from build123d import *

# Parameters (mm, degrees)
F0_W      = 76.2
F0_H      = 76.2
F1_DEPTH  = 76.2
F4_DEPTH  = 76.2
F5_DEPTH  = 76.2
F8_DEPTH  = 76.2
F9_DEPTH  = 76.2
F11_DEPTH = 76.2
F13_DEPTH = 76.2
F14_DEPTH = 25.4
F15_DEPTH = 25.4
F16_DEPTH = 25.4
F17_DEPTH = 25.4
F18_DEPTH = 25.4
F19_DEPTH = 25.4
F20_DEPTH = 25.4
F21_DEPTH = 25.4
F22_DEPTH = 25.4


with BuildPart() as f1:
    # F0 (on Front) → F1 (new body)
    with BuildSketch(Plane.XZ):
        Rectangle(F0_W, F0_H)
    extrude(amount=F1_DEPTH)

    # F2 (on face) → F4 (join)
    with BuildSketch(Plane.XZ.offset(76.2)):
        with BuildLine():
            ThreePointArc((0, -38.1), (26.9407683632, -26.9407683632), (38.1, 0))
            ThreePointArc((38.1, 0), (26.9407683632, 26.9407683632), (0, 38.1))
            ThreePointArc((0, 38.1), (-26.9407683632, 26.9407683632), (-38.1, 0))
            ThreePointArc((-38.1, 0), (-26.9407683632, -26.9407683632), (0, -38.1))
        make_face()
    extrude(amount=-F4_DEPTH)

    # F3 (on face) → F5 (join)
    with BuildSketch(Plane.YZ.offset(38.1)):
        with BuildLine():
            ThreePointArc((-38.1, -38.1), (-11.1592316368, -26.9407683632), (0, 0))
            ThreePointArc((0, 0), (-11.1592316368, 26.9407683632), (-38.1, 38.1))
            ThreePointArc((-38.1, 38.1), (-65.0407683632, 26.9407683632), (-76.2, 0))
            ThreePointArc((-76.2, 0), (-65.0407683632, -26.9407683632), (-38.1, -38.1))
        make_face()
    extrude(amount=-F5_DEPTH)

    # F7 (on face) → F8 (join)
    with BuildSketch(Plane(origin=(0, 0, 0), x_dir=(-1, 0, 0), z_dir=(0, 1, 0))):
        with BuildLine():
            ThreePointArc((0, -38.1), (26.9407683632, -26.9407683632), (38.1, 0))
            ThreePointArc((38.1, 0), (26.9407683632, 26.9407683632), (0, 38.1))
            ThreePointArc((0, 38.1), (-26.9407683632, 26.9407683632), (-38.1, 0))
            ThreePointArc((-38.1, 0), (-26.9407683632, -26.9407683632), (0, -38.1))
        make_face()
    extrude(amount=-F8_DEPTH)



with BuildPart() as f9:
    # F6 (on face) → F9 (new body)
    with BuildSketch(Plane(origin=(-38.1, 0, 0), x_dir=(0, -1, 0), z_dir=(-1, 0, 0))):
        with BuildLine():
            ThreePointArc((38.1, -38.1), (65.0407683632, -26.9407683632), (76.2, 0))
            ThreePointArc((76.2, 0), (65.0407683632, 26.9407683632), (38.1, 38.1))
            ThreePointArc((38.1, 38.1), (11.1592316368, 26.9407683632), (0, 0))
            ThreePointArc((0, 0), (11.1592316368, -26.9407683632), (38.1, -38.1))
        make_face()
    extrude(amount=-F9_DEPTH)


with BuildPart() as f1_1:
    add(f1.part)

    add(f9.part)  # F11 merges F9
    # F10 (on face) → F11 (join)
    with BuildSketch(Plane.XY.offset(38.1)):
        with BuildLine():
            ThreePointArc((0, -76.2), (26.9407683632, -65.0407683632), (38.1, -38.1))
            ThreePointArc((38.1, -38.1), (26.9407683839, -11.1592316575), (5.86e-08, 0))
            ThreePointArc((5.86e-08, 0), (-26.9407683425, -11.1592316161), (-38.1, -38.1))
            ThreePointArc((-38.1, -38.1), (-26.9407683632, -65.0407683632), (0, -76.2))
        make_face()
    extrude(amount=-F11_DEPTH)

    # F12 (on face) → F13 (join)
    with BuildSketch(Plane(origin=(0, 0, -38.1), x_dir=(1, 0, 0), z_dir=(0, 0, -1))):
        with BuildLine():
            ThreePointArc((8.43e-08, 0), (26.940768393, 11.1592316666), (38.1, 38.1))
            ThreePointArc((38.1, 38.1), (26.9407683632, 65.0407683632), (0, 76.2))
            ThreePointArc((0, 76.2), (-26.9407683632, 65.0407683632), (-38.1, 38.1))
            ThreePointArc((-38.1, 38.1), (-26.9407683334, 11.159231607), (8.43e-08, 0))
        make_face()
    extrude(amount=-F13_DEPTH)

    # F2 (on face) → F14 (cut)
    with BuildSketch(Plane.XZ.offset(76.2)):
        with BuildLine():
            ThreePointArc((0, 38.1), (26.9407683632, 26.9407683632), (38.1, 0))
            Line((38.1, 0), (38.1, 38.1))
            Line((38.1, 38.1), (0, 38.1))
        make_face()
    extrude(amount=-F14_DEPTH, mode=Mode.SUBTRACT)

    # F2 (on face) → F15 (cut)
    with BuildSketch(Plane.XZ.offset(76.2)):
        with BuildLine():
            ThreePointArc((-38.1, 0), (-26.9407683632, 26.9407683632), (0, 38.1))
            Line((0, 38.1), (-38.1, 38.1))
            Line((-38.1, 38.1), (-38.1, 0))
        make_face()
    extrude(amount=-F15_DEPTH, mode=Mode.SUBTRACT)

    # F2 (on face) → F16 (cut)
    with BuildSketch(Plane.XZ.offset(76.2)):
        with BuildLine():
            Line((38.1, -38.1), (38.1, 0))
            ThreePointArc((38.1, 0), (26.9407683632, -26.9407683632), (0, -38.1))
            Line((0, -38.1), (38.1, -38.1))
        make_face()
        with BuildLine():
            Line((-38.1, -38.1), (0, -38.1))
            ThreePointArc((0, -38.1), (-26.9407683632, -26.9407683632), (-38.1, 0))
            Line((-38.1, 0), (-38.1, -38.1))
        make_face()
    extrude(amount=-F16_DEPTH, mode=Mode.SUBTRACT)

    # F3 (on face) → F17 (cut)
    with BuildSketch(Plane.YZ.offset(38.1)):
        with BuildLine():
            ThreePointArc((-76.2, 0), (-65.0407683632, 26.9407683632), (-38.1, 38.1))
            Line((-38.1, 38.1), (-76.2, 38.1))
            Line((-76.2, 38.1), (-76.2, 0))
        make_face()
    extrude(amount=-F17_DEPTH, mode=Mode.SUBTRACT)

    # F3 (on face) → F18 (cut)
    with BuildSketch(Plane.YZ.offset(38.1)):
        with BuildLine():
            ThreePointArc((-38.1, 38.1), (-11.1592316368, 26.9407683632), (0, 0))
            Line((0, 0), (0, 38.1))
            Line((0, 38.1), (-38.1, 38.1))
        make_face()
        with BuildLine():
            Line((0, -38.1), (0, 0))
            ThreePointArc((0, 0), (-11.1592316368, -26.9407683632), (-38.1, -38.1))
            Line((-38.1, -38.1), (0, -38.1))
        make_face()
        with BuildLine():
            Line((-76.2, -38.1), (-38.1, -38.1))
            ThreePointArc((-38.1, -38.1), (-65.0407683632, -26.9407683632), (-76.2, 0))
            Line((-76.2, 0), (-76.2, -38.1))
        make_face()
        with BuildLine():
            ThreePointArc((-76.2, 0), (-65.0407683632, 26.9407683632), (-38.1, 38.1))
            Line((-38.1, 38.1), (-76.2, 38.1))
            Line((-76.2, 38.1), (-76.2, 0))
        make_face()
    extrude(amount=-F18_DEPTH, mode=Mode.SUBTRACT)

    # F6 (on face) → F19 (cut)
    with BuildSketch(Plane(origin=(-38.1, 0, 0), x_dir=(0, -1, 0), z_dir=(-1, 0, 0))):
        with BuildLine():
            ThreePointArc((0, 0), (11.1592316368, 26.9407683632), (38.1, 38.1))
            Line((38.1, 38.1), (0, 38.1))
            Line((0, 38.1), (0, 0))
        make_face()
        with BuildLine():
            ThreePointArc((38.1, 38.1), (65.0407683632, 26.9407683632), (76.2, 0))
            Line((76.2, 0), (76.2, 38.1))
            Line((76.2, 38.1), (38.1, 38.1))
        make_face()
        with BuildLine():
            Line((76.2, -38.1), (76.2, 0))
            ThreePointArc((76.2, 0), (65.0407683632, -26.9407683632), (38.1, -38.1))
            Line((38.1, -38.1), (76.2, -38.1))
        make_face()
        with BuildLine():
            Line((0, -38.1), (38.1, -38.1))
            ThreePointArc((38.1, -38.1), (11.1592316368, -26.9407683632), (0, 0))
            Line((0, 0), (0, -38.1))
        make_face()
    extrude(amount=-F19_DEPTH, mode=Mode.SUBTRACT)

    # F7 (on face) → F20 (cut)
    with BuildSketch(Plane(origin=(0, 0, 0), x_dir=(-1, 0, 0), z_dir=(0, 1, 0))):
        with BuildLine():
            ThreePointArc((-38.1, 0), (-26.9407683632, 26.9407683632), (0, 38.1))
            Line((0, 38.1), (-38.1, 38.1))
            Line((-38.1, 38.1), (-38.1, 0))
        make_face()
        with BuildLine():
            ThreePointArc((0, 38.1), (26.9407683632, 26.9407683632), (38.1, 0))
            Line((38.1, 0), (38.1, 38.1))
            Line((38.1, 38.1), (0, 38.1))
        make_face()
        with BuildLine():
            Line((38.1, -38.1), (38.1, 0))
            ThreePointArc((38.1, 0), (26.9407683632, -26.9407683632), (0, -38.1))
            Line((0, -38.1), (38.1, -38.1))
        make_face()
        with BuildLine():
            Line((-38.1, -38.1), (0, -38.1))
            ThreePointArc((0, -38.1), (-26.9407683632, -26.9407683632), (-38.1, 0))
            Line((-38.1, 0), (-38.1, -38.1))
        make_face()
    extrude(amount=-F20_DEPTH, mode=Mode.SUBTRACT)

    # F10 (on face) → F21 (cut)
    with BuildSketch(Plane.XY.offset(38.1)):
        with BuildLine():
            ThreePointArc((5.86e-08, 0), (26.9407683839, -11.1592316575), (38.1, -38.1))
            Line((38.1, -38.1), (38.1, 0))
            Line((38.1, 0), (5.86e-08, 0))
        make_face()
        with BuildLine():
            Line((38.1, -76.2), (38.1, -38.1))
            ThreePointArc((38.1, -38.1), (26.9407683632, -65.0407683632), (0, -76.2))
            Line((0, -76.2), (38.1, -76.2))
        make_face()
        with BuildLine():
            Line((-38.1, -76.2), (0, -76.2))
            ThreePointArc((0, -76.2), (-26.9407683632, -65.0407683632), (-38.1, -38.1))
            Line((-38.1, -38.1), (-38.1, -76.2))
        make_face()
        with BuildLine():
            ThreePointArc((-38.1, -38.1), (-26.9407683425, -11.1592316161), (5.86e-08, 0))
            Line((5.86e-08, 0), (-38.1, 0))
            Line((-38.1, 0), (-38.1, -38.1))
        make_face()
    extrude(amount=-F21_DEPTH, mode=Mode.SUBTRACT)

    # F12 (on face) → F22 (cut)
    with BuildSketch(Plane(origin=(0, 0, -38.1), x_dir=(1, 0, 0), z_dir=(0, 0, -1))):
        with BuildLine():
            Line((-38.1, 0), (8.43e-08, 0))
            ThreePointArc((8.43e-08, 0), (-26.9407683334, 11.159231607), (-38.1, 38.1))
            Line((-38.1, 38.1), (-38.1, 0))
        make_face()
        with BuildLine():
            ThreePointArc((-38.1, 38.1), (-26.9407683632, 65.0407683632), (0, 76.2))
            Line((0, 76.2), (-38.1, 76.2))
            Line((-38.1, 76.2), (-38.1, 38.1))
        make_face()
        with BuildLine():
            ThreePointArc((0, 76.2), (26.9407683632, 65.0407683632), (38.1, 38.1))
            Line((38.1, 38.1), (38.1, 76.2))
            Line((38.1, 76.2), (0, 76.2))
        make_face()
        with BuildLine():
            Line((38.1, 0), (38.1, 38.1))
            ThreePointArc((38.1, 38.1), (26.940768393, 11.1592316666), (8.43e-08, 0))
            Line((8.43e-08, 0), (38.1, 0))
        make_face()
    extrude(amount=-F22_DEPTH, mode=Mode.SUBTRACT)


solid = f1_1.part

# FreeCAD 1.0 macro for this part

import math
import FreeCAD as App
import Part
import Sketcher
Q = App.Units.Quantity

doc = App.newDocument("Part")
body = doc.addObject("PartDesign::Body", "Body")

# Sketch on XZ plane
sketch1 = body.newObject("Sketcher::SketchObject", "Sketch")
sketch1.AttachmentSupport = (doc.getObject("XZ_Plane"), [""])
sketch1.MapMode = "FlatFace"
sketch1.addGeometry(Part.LineSegment(App.Vector(-38, 38, 0), App.Vector(-38, -38, 0)), False)
sketch1.addGeometry(Part.LineSegment(App.Vector(-38, -38, 0), App.Vector(38, -38, 0)), False)
sketch1.addGeometry(Part.LineSegment(App.Vector(38, -38, 0), App.Vector(38, 38, 0)), False)
sketch1.addGeometry(Part.LineSegment(App.Vector(38, 38, 0), App.Vector(-38, 38, 0)), False)
sketch1.addConstraint(Sketcher.Constraint("Coincident", 0, 2, 1, 1))
sketch1.addConstraint(Sketcher.Constraint("Coincident", 1, 2, 2, 1))
sketch1.addConstraint(Sketcher.Constraint("Coincident", 2, 2, 3, 1))
sketch1.addConstraint(Sketcher.Constraint("Coincident", 3, 2, 0, 1))
sketch1.addConstraint(Sketcher.Constraint("Vertical", 0))
sketch1.addConstraint(Sketcher.Constraint("Horizontal", 1))
sketch1.addConstraint(Sketcher.Constraint("Vertical", 2))
sketch1.addConstraint(Sketcher.Constraint("Horizontal", 3))
sketch1.addConstraint(Sketcher.Constraint("Symmetric", 0, 2, 2, 2, -1, 1))
sketch1.addConstraint(Sketcher.Constraint("Equal", 3, 0))
sketch1.addConstraint(Sketcher.Constraint("DistanceX", 1, 1, 1, 2, Q("3 in")))
pad1 = body.newObject("PartDesign::Pad", "Pad")
pad1.Profile = sketch1
pad1.Length = Q("3 in")

# Sketch on XZ plane
sketch2 = body.newObject("Sketcher::SketchObject", "Sketch001")
sketch2.AttachmentSupport = (doc.getObject("XZ_Plane"), [""])
sketch2.MapMode = "FlatFace"
sketch2.AttachmentOffset = App.Placement(App.Vector(0, 0, 3 * 25.4), App.Rotation())
sketch2.addGeometry(Part.ArcOfCircle(Part.Circle(App.Vector(0, 0, 0), App.Vector(0, 0, 1), 38), math.radians(-90), math.radians(0)), False)
sketch2.addGeometry(Part.ArcOfCircle(Part.Circle(App.Vector(0, 0, 0), App.Vector(0, 0, 1), 38), math.radians(0), math.radians(90)), False)
sketch2.addGeometry(Part.ArcOfCircle(Part.Circle(App.Vector(0, 0, 0), App.Vector(0, 0, 1), 38), math.radians(90), math.radians(180)), False)
sketch2.addGeometry(Part.ArcOfCircle(Part.Circle(App.Vector(0, 0, 0), App.Vector(0, 0, 1), 38), math.radians(180), math.radians(270)), False)
sketch2.addConstraint(Sketcher.Constraint("Tangent", 0, 2, 1, 1))
sketch2.addConstraint(Sketcher.Constraint("Tangent", 1, 2, 2, 1))
sketch2.addConstraint(Sketcher.Constraint("Tangent", 2, 2, 3, 1))
sketch2.addConstraint(Sketcher.Constraint("Tangent", 3, 2, 0, 1))
sketch2.addConstraint(Sketcher.Constraint("Coincident", 0, 3, -1, 1))
sketch2.addConstraint(Sketcher.Constraint("Equal", 0, 1))
sketch2.addConstraint(Sketcher.Constraint("PointOnObject", 0, 2, -1))
sketch2.addConstraint(Sketcher.Constraint("PointOnObject", 1, 2, -2))
sketch2.addConstraint(Sketcher.Constraint("PointOnObject", 2, 2, -1))
sketch2.addConstraint(Sketcher.Constraint("PointOnObject", 3, 2, -2))
sketch2.addConstraint(Sketcher.Constraint("Radius", 0, Q("1.5 in")))
pad2 = body.newObject("PartDesign::Pad", "Pad001")
pad2.Profile = sketch2
pad2.Length = Q("3 in")
pad2.Reversed = True

# Sketch on YZ plane
sketch3 = body.newObject("Sketcher::SketchObject", "Sketch002")
sketch3.AttachmentSupport = (doc.getObject("YZ_Plane"), [""])
sketch3.MapMode = "FlatFace"
sketch3.AttachmentOffset = App.Placement(App.Vector(0, 0, 1.5 * 25.4), App.Rotation())
sketch3.addGeometry(Part.ArcOfCircle(Part.Circle(App.Vector(-38, 0, 0), App.Vector(0, 0, 1), 38), math.radians(-90), math.radians(0)), False)
sketch3.addGeometry(Part.ArcOfCircle(Part.Circle(App.Vector(-38, 0, 0), App.Vector(0, 0, 1), 38), math.radians(0), math.radians(90)), False)
sketch3.addGeometry(Part.ArcOfCircle(Part.Circle(App.Vector(-38, 0, 0), App.Vector(0, 0, 1), 38), math.radians(90), math.radians(180)), False)
sketch3.addGeometry(Part.ArcOfCircle(Part.Circle(App.Vector(-38, 0, 0), App.Vector(0, 0, 1), 38), math.radians(180), math.radians(270)), False)
sketch3.addConstraint(Sketcher.Constraint("Tangent", 0, 2, 1, 1))
sketch3.addConstraint(Sketcher.Constraint("Tangent", 1, 2, 2, 1))
sketch3.addConstraint(Sketcher.Constraint("Tangent", 2, 2, 3, 1))
sketch3.addConstraint(Sketcher.Constraint("Tangent", 3, 2, 0, 1))
sketch3.addConstraint(Sketcher.Constraint("Coincident", 0, 2, -1, 1))
sketch3.addConstraint(Sketcher.Constraint("Equal", 0, 1))
sketch3.addConstraint(Sketcher.Constraint("Symmetric", 1, 2, 3, 2, -1))
sketch3.addConstraint(Sketcher.Constraint("PointOnObject", 2, 2, -1))
sketch3.addConstraint(Sketcher.Constraint("Vertical", 3, 3, 1, 2))
sketch3.addConstraint(Sketcher.Constraint("Radius", 0, Q("1.5 in")))
pad3 = body.newObject("PartDesign::Pad", "Pad002")
pad3.Profile = sketch3
pad3.Length = Q("3 in")
pad3.Reversed = True

# Sketch on XZ plane
sketch4 = body.newObject("Sketcher::SketchObject", "Sketch003")
sketch4.AttachmentSupport = (doc.getObject("XZ_Plane"), [""])
sketch4.MapMode = "FlatFace"
sketch4.addGeometry(Part.ArcOfCircle(Part.Circle(App.Vector(0, 0, 0), App.Vector(0, 0, 1), 38), math.radians(180), math.radians(270)), False)
sketch4.addGeometry(Part.ArcOfCircle(Part.Circle(App.Vector(0, 0, 0), App.Vector(0, 0, 1), 38), math.radians(90), math.radians(180)), False)
sketch4.addGeometry(Part.ArcOfCircle(Part.Circle(App.Vector(0, 0, 0), App.Vector(0, 0, 1), 38), math.radians(0), math.radians(90)), False)
sketch4.addGeometry(Part.ArcOfCircle(Part.Circle(App.Vector(0, 0, 0), App.Vector(0, 0, 1), 38), math.radians(-90), math.radians(0)), False)
sketch4.addConstraint(Sketcher.Constraint("Tangent", 0, 1, 1, 2))
sketch4.addConstraint(Sketcher.Constraint("Tangent", 1, 1, 2, 2))
sketch4.addConstraint(Sketcher.Constraint("Tangent", 2, 1, 3, 2))
sketch4.addConstraint(Sketcher.Constraint("Tangent", 3, 1, 0, 2))
sketch4.addConstraint(Sketcher.Constraint("Coincident", 0, 3, -1, 1))
sketch4.addConstraint(Sketcher.Constraint("Equal", 0, 1))
sketch4.addConstraint(Sketcher.Constraint("PointOnObject", 0, 1, -1))
sketch4.addConstraint(Sketcher.Constraint("PointOnObject", 1, 1, -2))
sketch4.addConstraint(Sketcher.Constraint("PointOnObject", 2, 1, -1))
sketch4.addConstraint(Sketcher.Constraint("PointOnObject", 3, 1, -2))
sketch4.addConstraint(Sketcher.Constraint("Radius", 0, Q("1.5 in")))
pad4 = body.newObject("PartDesign::Pad", "Pad003")
pad4.Profile = sketch4
pad4.Length = Q("3 in")
body2 = doc.addObject("PartDesign::Body", "Body001")

# Sketch on YZ plane
sketch5 = body2.newObject("Sketcher::SketchObject", "Sketch004")
sketch5.AttachmentSupport = (doc.getObject("YZ_Plane001"), [""])
sketch5.MapMode = "FlatFace"
sketch5.AttachmentOffset = App.Placement(App.Vector(0, 0, -1.5 * 25.4), App.Rotation())
sketch5.addGeometry(Part.ArcOfCircle(Part.Circle(App.Vector(-38, 0, 0), App.Vector(0, 0, 1), 38), math.radians(180), math.radians(270)), False)
sketch5.addGeometry(Part.ArcOfCircle(Part.Circle(App.Vector(-38, 0, 0), App.Vector(0, 0, 1), 38), math.radians(90), math.radians(180)), False)
sketch5.addGeometry(Part.ArcOfCircle(Part.Circle(App.Vector(-38, 0, 0), App.Vector(0, 0, 1), 38), math.radians(0), math.radians(90)), False)
sketch5.addGeometry(Part.ArcOfCircle(Part.Circle(App.Vector(-38, 0, 0), App.Vector(0, 0, 1), 38), math.radians(-90), math.radians(0)), False)
sketch5.addConstraint(Sketcher.Constraint("Tangent", 0, 1, 1, 2))
sketch5.addConstraint(Sketcher.Constraint("Tangent", 1, 1, 2, 2))
sketch5.addConstraint(Sketcher.Constraint("Tangent", 2, 1, 3, 2))
sketch5.addConstraint(Sketcher.Constraint("Tangent", 3, 1, 0, 2))
sketch5.addConstraint(Sketcher.Constraint("Coincident", 2, 1, -1, 1))
sketch5.addConstraint(Sketcher.Constraint("Equal", 0, 1))
sketch5.addConstraint(Sketcher.Constraint("Symmetric", 1, 1, 3, 1, -1))
sketch5.addConstraint(Sketcher.Constraint("PointOnObject", 0, 1, -1))
sketch5.addConstraint(Sketcher.Constraint("Vertical", 3, 3, 1, 1))
sketch5.addConstraint(Sketcher.Constraint("Radius", 0, Q("1.5 in")))
pad5 = body2.newObject("PartDesign::Pad", "Pad004")
pad5.Profile = sketch5
pad5.Length = Q("3 in")
doc.recompute()

boolean = body.newObject("PartDesign::Boolean", "Boolean")
boolean.Type = "Fuse"
boolean.addObjects([body2])

# Sketch on XY plane
sketch6 = body.newObject("Sketcher::SketchObject", "Sketch005")
sketch6.AttachmentSupport = (doc.getObject("XY_Plane"), [""])
sketch6.MapMode = "FlatFace"
sketch6.AttachmentOffset = App.Placement(App.Vector(0, 0, 1.5 * 25.4), App.Rotation())
sketch6.addGeometry(Part.ArcOfCircle(Part.Circle(App.Vector(0, -38, 0), App.Vector(0, 0, 1), 38), math.radians(-90), math.radians(0)), False)
sketch6.addGeometry(Part.ArcOfCircle(Part.Circle(App.Vector(0, -38, 0), App.Vector(0, 0, 1), 38), math.radians(0), math.radians(90)), False)
sketch6.addGeometry(Part.ArcOfCircle(Part.Circle(App.Vector(0, -38, 0), App.Vector(0, 0, 1), 38), math.radians(90), math.radians(180)), False)
sketch6.addGeometry(Part.ArcOfCircle(Part.Circle(App.Vector(0, -38, 0), App.Vector(0, 0, 1), 38), math.radians(180), math.radians(270)), False)
sketch6.addConstraint(Sketcher.Constraint("Tangent", 0, 2, 1, 1))
sketch6.addConstraint(Sketcher.Constraint("Tangent", 1, 2, 2, 1))
sketch6.addConstraint(Sketcher.Constraint("Tangent", 2, 2, 3, 1))
sketch6.addConstraint(Sketcher.Constraint("Tangent", 3, 2, 0, 1))
sketch6.addConstraint(Sketcher.Constraint("Coincident", 1, 2, -1, 1))
sketch6.addConstraint(Sketcher.Constraint("Equal", 0, 1))
sketch6.addConstraint(Sketcher.Constraint("Symmetric", 0, 2, 2, 2, -2))
sketch6.addConstraint(Sketcher.Constraint("PointOnObject", 3, 2, -2))
sketch6.addConstraint(Sketcher.Constraint("Horizontal", 3, 3, 0, 2))
sketch6.addConstraint(Sketcher.Constraint("Radius", 0, Q("1.5 in")))
pad6 = body.newObject("PartDesign::Pad", "Pad005")
pad6.Profile = sketch6
pad6.Length = Q("3 in")
pad6.Reversed = True

# Sketch on XY plane
sketch7 = body.newObject("Sketcher::SketchObject", "Sketch006")
sketch7.AttachmentSupport = (doc.getObject("XY_Plane"), [""])
sketch7.MapMode = "FlatFace"
sketch7.AttachmentOffset = App.Placement(App.Vector(0, 0, -1.5 * 25.4), App.Rotation())
sketch7.addGeometry(Part.ArcOfCircle(Part.Circle(App.Vector(0, -38, 0), App.Vector(0, 0, 1), 38), math.radians(0), math.radians(90)), False)
sketch7.addGeometry(Part.ArcOfCircle(Part.Circle(App.Vector(0, -38, 0), App.Vector(0, 0, 1), 38), math.radians(-90), math.radians(0)), False)
sketch7.addGeometry(Part.ArcOfCircle(Part.Circle(App.Vector(0, -38, 0), App.Vector(0, 0, 1), 38), math.radians(180), math.radians(270)), False)
sketch7.addGeometry(Part.ArcOfCircle(Part.Circle(App.Vector(0, -38, 0), App.Vector(0, 0, 1), 38), math.radians(90), math.radians(180)), False)
sketch7.addConstraint(Sketcher.Constraint("Tangent", 0, 1, 1, 2))
sketch7.addConstraint(Sketcher.Constraint("Tangent", 1, 1, 2, 2))
sketch7.addConstraint(Sketcher.Constraint("Tangent", 2, 1, 3, 2))
sketch7.addConstraint(Sketcher.Constraint("Tangent", 3, 1, 0, 2))
sketch7.addConstraint(Sketcher.Constraint("Coincident", 3, 1, -1, 1))
sketch7.addConstraint(Sketcher.Constraint("Equal", 0, 1))
sketch7.addConstraint(Sketcher.Constraint("Symmetric", 0, 1, 2, 1, -2))
sketch7.addConstraint(Sketcher.Constraint("PointOnObject", 1, 1, -2))
sketch7.addConstraint(Sketcher.Constraint("Horizontal", 3, 3, 0, 1))
sketch7.addConstraint(Sketcher.Constraint("Radius", 0, Q("1.5 in")))
pad7 = body.newObject("PartDesign::Pad", "Pad006")
pad7.Profile = sketch7
pad7.Length = Q("3 in")

# Sketch on XZ plane
sketch8 = body.newObject("Sketcher::SketchObject", "Sketch007")
sketch8.AttachmentSupport = (doc.getObject("XZ_Plane"), [""])
sketch8.MapMode = "FlatFace"
sketch8.AttachmentOffset = App.Placement(App.Vector(0, 0, 3 * 25.4), App.Rotation())
sketch8.addGeometry(Part.ArcOfCircle(Part.Circle(App.Vector(0, 0, 0), App.Vector(0, 0, 1), 38), math.radians(0), math.radians(90)), False)
sketch8.addGeometry(Part.LineSegment(App.Vector(38, 0, 0), App.Vector(38, 38, 0)), False)
sketch8.addGeometry(Part.LineSegment(App.Vector(38, 38, 0), App.Vector(0, 38, 0)), False)
sketch8.addConstraint(Sketcher.Constraint("Tangent", 0, 1, 1, 1))
sketch8.addConstraint(Sketcher.Constraint("Coincident", 1, 2, 2, 1))
sketch8.addConstraint(Sketcher.Constraint("Tangent", 2, 2, 0, 2))
sketch8.addConstraint(Sketcher.Constraint("Vertical", 1))
sketch8.addConstraint(Sketcher.Constraint("Horizontal", 2))
sketch8.addConstraint(Sketcher.Constraint("Coincident", 0, 3, -1, 1))
sketch8.addConstraint(Sketcher.Constraint("Radius", 0, Q("1.5 in")))
pocket1 = body.newObject("PartDesign::Pocket", "Pocket")
pocket1.Profile = sketch8
pocket1.Length = Q("1 in")

# Sketch on XZ plane
sketch9 = body.newObject("Sketcher::SketchObject", "Sketch008")
sketch9.AttachmentSupport = (doc.getObject("XZ_Plane"), [""])
sketch9.MapMode = "FlatFace"
sketch9.AttachmentOffset = App.Placement(App.Vector(0, 0, 3 * 25.4), App.Rotation())
sketch9.addGeometry(Part.ArcOfCircle(Part.Circle(App.Vector(0, 0, 0), App.Vector(0, 0, 1), 38), math.radians(90), math.radians(180)), False)
sketch9.addGeometry(Part.LineSegment(App.Vector(0, 38, 0), App.Vector(-38, 38, 0)), False)
sketch9.addGeometry(Part.LineSegment(App.Vector(-38, 38, 0), App.Vector(-38, 0, 0)), False)
sketch9.addConstraint(Sketcher.Constraint("Tangent", 0, 1, 1, 1))
sketch9.addConstraint(Sketcher.Constraint("Coincident", 1, 2, 2, 1))
sketch9.addConstraint(Sketcher.Constraint("Tangent", 2, 2, 0, 2))
sketch9.addConstraint(Sketcher.Constraint("Horizontal", 1))
sketch9.addConstraint(Sketcher.Constraint("Vertical", 2))
sketch9.addConstraint(Sketcher.Constraint("Coincident", 0, 3, -1, 1))
sketch9.addConstraint(Sketcher.Constraint("Radius", 0, Q("1.5 in")))
pocket2 = body.newObject("PartDesign::Pocket", "Pocket001")
pocket2.Profile = sketch9
pocket2.Length = Q("1 in")

# Sketch on XZ plane
sketch10 = body.newObject("Sketcher::SketchObject", "Sketch009")
sketch10.AttachmentSupport = (doc.getObject("XZ_Plane"), [""])
sketch10.MapMode = "FlatFace"
sketch10.AttachmentOffset = App.Placement(App.Vector(0, 0, 3 * 25.4), App.Rotation())
sketch10.addGeometry(Part.LineSegment(App.Vector(38, -38, 0), App.Vector(38, 0, 0)), False)
sketch10.addGeometry(Part.ArcOfCircle(Part.Circle(App.Vector(0, 0, 0), App.Vector(0, 0, 1), 38), math.radians(-90), math.radians(0)), False)
sketch10.addGeometry(Part.LineSegment(App.Vector(0, -38, 0), App.Vector(38, -38, 0)), False)
sketch10.addGeometry(Part.LineSegment(App.Vector(-38, -38, 0), App.Vector(0, -38, 0)), False)
sketch10.addGeometry(Part.ArcOfCircle(Part.Circle(App.Vector(0, 0, 0), App.Vector(0, 0, 1), 38), math.radians(180), math.radians(270)), False)
sketch10.addGeometry(Part.LineSegment(App.Vector(-38, 0, 0), App.Vector(-38, -38, 0)), False)
sketch10.addConstraint(Sketcher.Constraint("Tangent", 0, 2, 1, 2))
sketch10.addConstraint(Sketcher.Constraint("Tangent", 1, 1, 2, 1))
sketch10.addConstraint(Sketcher.Constraint("Coincident", 2, 2, 0, 1))
sketch10.addConstraint(Sketcher.Constraint("Tangent", 3, 2, 4, 2))
sketch10.addConstraint(Sketcher.Constraint("Tangent", 4, 1, 5, 1))
sketch10.addConstraint(Sketcher.Constraint("Coincident", 5, 2, 3, 1))
sketch10.addConstraint(Sketcher.Constraint("Vertical", 0))
sketch10.addConstraint(Sketcher.Constraint("Horizontal", 2))
sketch10.addConstraint(Sketcher.Constraint("Horizontal", 3))
sketch10.addConstraint(Sketcher.Constraint("Vertical", 5))
sketch10.addConstraint(Sketcher.Constraint("Coincident", 1, 3, -1, 1))
sketch10.addConstraint(Sketcher.Constraint("Coincident", 4, 3, -1, 1))
sketch10.addConstraint(Sketcher.Constraint("Equal", 1, 4))
sketch10.addConstraint(Sketcher.Constraint("Radius", 1, Q("1.5 in")))
pocket3 = body.newObject("PartDesign::Pocket", "Pocket002")
pocket3.Profile = sketch10
pocket3.Length = Q("1 in")

# Sketch on YZ plane
sketch11 = body.newObject("Sketcher::SketchObject", "Sketch010")
sketch11.AttachmentSupport = (doc.getObject("YZ_Plane"), [""])
sketch11.MapMode = "FlatFace"
sketch11.AttachmentOffset = App.Placement(App.Vector(0, 0, 1.5 * 25.4), App.Rotation())
sketch11.addGeometry(Part.ArcOfCircle(Part.Circle(App.Vector(-38, 0, 0), App.Vector(0, 0, 1), 38), math.radians(90), math.radians(180)), False)
sketch11.addGeometry(Part.LineSegment(App.Vector(-38, 38, 0), App.Vector(-76, 38, 0)), False)
sketch11.addGeometry(Part.LineSegment(App.Vector(-76, 38, 0), App.Vector(-76, 0, 0)), False)
sketch11.addConstraint(Sketcher.Constraint("Tangent", 0, 1, 1, 1))
sketch11.addConstraint(Sketcher.Constraint("Coincident", 1, 2, 2, 1))
sketch11.addConstraint(Sketcher.Constraint("Tangent", 2, 2, 0, 2))
sketch11.addConstraint(Sketcher.Constraint("Horizontal", 1))
sketch11.addConstraint(Sketcher.Constraint("Vertical", 2))
sketch11.addConstraint(Sketcher.Constraint("PointOnObject", 0, 3, -1))
sketch11.addConstraint(Sketcher.Constraint("Radius", 0, Q("1.5 in")))
sketch11.addConstraint(Sketcher.Constraint("DistanceX", 1, 2, -1, 1, Q("3 in")))
pocket4 = body.newObject("PartDesign::Pocket", "Pocket003")
pocket4.Profile = sketch11
pocket4.Length = Q("1 in")

# Sketch on YZ plane
sketch12 = body.newObject("Sketcher::SketchObject", "Sketch011")
sketch12.AttachmentSupport = (doc.getObject("YZ_Plane"), [""])
sketch12.MapMode = "FlatFace"
sketch12.AttachmentOffset = App.Placement(App.Vector(0, 0, 1.5 * 25.4), App.Rotation())
sketch12.addGeometry(Part.ArcOfCircle(Part.Circle(App.Vector(-38, 0, 0), App.Vector(0, 0, 1), 38), math.radians(0), math.radians(90)), False)
sketch12.addGeometry(Part.LineSegment(App.Vector(0, 0, 0), App.Vector(0, 38, 0)), False)
sketch12.addGeometry(Part.LineSegment(App.Vector(0, 38, 0), App.Vector(-38, 38, 0)), False)
sketch12.addGeometry(Part.LineSegment(App.Vector(0, -38, 0), App.Vector(0, 0, 0)), False)
sketch12.addGeometry(Part.ArcOfCircle(Part.Circle(App.Vector(-38, 0, 0), App.Vector(0, 0, 1), 38), math.radians(-90), math.radians(0)), False)
sketch12.addGeometry(Part.LineSegment(App.Vector(-38, -38, 0), App.Vector(0, -38, 0)), False)
sketch12.addGeometry(Part.LineSegment(App.Vector(-76, -38, 0), App.Vector(-38, -38, 0)), False)
sketch12.addGeometry(Part.ArcOfCircle(Part.Circle(App.Vector(-38, 0, 0), App.Vector(0, 0, 1), 38), math.radians(180), math.radians(270)), False)
sketch12.addGeometry(Part.LineSegment(App.Vector(-76, 0, 0), App.Vector(-76, -38, 0)), False)
sketch12.addGeometry(Part.ArcOfCircle(Part.Circle(App.Vector(-38, 0, 0), App.Vector(0, 0, 1), 38), math.radians(90), math.radians(180)), False)
sketch12.addGeometry(Part.LineSegment(App.Vector(-38, 38, 0), App.Vector(-76, 38, 0)), False)
sketch12.addGeometry(Part.LineSegment(App.Vector(-76, 38, 0), App.Vector(-76, 0, 0)), False)
sketch12.addConstraint(Sketcher.Constraint("Tangent", 0, 1, 1, 1))
sketch12.addConstraint(Sketcher.Constraint("Coincident", 1, 2, 2, 1))
sketch12.addConstraint(Sketcher.Constraint("Tangent", 2, 2, 0, 2))
sketch12.addConstraint(Sketcher.Constraint("Tangent", 3, 2, 4, 2))
sketch12.addConstraint(Sketcher.Constraint("Tangent", 4, 1, 5, 1))
sketch12.addConstraint(Sketcher.Constraint("Coincident", 5, 2, 3, 1))
sketch12.addConstraint(Sketcher.Constraint("Tangent", 6, 2, 7, 2))
sketch12.addConstraint(Sketcher.Constraint("Tangent", 7, 1, 8, 1))
sketch12.addConstraint(Sketcher.Constraint("Coincident", 8, 2, 6, 1))
sketch12.addConstraint(Sketcher.Constraint("Tangent", 9, 1, 10, 1))
sketch12.addConstraint(Sketcher.Constraint("Coincident", 10, 2, 11, 1))
sketch12.addConstraint(Sketcher.Constraint("Tangent", 11, 2, 9, 2))
sketch12.addConstraint(Sketcher.Constraint("Vertical", 1))
sketch12.addConstraint(Sketcher.Constraint("Horizontal", 2))
sketch12.addConstraint(Sketcher.Constraint("Vertical", 3))
sketch12.addConstraint(Sketcher.Constraint("Horizontal", 5))
sketch12.addConstraint(Sketcher.Constraint("Horizontal", 6))
sketch12.addConstraint(Sketcher.Constraint("Vertical", 8))
sketch12.addConstraint(Sketcher.Constraint("Horizontal", 10))
sketch12.addConstraint(Sketcher.Constraint("Vertical", 11))
sketch12.addConstraint(Sketcher.Constraint("Coincident", 0, 1, -1, 1))
sketch12.addConstraint(Sketcher.Constraint("Coincident", 3, 2, -1, 1))
sketch12.addConstraint(Sketcher.Constraint("Coincident", 7, 3, 0, 3))
sketch12.addConstraint(Sketcher.Constraint("Coincident", 9, 3, 0, 3))
sketch12.addConstraint(Sketcher.Constraint("Coincident", 6, 2, 4, 1))
sketch12.addConstraint(Sketcher.Constraint("Equal", 7, 9))
sketch12.addConstraint(Sketcher.Constraint("Radius", 0, Q("1.5 in")))
pocket5 = body.newObject("PartDesign::Pocket", "Pocket004")
pocket5.Profile = sketch12
pocket5.Length = Q("1 in")

# Sketch on YZ plane
sketch13 = body.newObject("Sketcher::SketchObject", "Sketch012")
sketch13.AttachmentSupport = (doc.getObject("YZ_Plane"), [""])
sketch13.MapMode = "FlatFace"
sketch13.AttachmentOffset = App.Placement(App.Vector(0, 0, -1.5 * 25.4), App.Rotation())
sketch13.addGeometry(Part.ArcOfCircle(Part.Circle(App.Vector(-38, 0, 0), App.Vector(0, 0, 1), 38), math.radians(0), math.radians(90)), False)
sketch13.addGeometry(Part.LineSegment(App.Vector(-38, 38, 0), App.Vector(0, 38, 0)), False)
sketch13.addGeometry(Part.LineSegment(App.Vector(0, 38, 0), App.Vector(0, 0, 0)), False)
sketch13.addGeometry(Part.ArcOfCircle(Part.Circle(App.Vector(-38, 0, 0), App.Vector(0, 0, 1), 38), math.radians(90), math.radians(180)), False)
sketch13.addGeometry(Part.LineSegment(App.Vector(-76, 0, 0), App.Vector(-76, 38, 0)), False)
sketch13.addGeometry(Part.LineSegment(App.Vector(-76, 38, 0), App.Vector(-38, 38, 0)), False)
sketch13.addGeometry(Part.LineSegment(App.Vector(-76, -38, 0), App.Vector(-76, 0, 0)), False)
sketch13.addGeometry(Part.ArcOfCircle(Part.Circle(App.Vector(-38, 0, 0), App.Vector(0, 0, 1), 38), math.radians(180), math.radians(270)), False)
sketch13.addGeometry(Part.LineSegment(App.Vector(-38, -38, 0), App.Vector(-76, -38, 0)), False)
sketch13.addGeometry(Part.LineSegment(App.Vector(0, -38, 0), App.Vector(-38, -38, 0)), False)
sketch13.addGeometry(Part.ArcOfCircle(Part.Circle(App.Vector(-38, 0, 0), App.Vector(0, 0, 1), 38), math.radians(-90), math.radians(0)), False)
sketch13.addGeometry(Part.LineSegment(App.Vector(0, 0, 0), App.Vector(0, -38, 0)), False)
sketch13.addConstraint(Sketcher.Constraint("Tangent", 0, 2, 1, 1))
sketch13.addConstraint(Sketcher.Constraint("Coincident", 1, 2, 2, 1))
sketch13.addConstraint(Sketcher.Constraint("Tangent", 2, 2, 0, 1))
sketch13.addConstraint(Sketcher.Constraint("Tangent", 3, 2, 4, 1))
sketch13.addConstraint(Sketcher.Constraint("Coincident", 4, 2, 5, 1))
sketch13.addConstraint(Sketcher.Constraint("Tangent", 5, 2, 3, 1))
sketch13.addConstraint(Sketcher.Constraint("Tangent", 6, 2, 7, 1))
sketch13.addConstraint(Sketcher.Constraint("Tangent", 7, 2, 8, 1))
sketch13.addConstraint(Sketcher.Constraint("Coincident", 8, 2, 6, 1))
sketch13.addConstraint(Sketcher.Constraint("Tangent", 9, 2, 10, 1))
sketch13.addConstraint(Sketcher.Constraint("Tangent", 10, 2, 11, 1))
sketch13.addConstraint(Sketcher.Constraint("Coincident", 11, 2, 9, 1))
sketch13.addConstraint(Sketcher.Constraint("Horizontal", 1))
sketch13.addConstraint(Sketcher.Constraint("Vertical", 2))
sketch13.addConstraint(Sketcher.Constraint("Vertical", 4))
sketch13.addConstraint(Sketcher.Constraint("Horizontal", 5))
sketch13.addConstraint(Sketcher.Constraint("Vertical", 6))
sketch13.addConstraint(Sketcher.Constraint("Horizontal", 8))
sketch13.addConstraint(Sketcher.Constraint("Horizontal", 9))
sketch13.addConstraint(Sketcher.Constraint("Vertical", 11))
sketch13.addConstraint(Sketcher.Constraint("Coincident", 2, 2, -1, 1))
sketch13.addConstraint(Sketcher.Constraint("Coincident", 10, 2, -1, 1))
sketch13.addConstraint(Sketcher.Constraint("Coincident", 3, 3, 0, 3))
sketch13.addConstraint(Sketcher.Constraint("Coincident", 7, 3, 0, 3))
sketch13.addConstraint(Sketcher.Constraint("Coincident", 9, 2, 7, 2))
sketch13.addConstraint(Sketcher.Constraint("Equal", 0, 3))
sketch13.addConstraint(Sketcher.Constraint("Radius", 0, Q("1.5 in")))
pocket6 = body.newObject("PartDesign::Pocket", "Pocket005")
pocket6.Profile = sketch13
pocket6.Length = Q("1 in")
pocket6.Reversed = True

# Sketch on XZ plane
sketch14 = body.newObject("Sketcher::SketchObject", "Sketch013")
sketch14.AttachmentSupport = (doc.getObject("XZ_Plane"), [""])
sketch14.MapMode = "FlatFace"
sketch14.addGeometry(Part.ArcOfCircle(Part.Circle(App.Vector(0, 0, 0), App.Vector(0, 0, 1), 38), math.radians(0), math.radians(90)), False)
sketch14.addGeometry(Part.LineSegment(App.Vector(0, 38, 0), App.Vector(38, 38, 0)), False)
sketch14.addGeometry(Part.LineSegment(App.Vector(38, 38, 0), App.Vector(38, 0, 0)), False)
sketch14.addGeometry(Part.ArcOfCircle(Part.Circle(App.Vector(0, 0, 0), App.Vector(0, 0, 1), 38), math.radians(90), math.radians(180)), False)
sketch14.addGeometry(Part.LineSegment(App.Vector(-38, 0, 0), App.Vector(-38, 38, 0)), False)
sketch14.addGeometry(Part.LineSegment(App.Vector(-38, 38, 0), App.Vector(0, 38, 0)), False)
sketch14.addGeometry(Part.LineSegment(App.Vector(-38, -38, 0), App.Vector(-38, 0, 0)), False)
sketch14.addGeometry(Part.ArcOfCircle(Part.Circle(App.Vector(0, 0, 0), App.Vector(0, 0, 1), 38), math.radians(180), math.radians(270)), False)
sketch14.addGeometry(Part.LineSegment(App.Vector(0, -38, 0), App.Vector(-38, -38, 0)), False)
sketch14.addGeometry(Part.LineSegment(App.Vector(38, -38, 0), App.Vector(0, -38, 0)), False)
sketch14.addGeometry(Part.ArcOfCircle(Part.Circle(App.Vector(0, 0, 0), App.Vector(0, 0, 1), 38), math.radians(-90), math.radians(0)), False)
sketch14.addGeometry(Part.LineSegment(App.Vector(38, 0, 0), App.Vector(38, -38, 0)), False)
sketch14.addConstraint(Sketcher.Constraint("Tangent", 0, 2, 1, 1))
sketch14.addConstraint(Sketcher.Constraint("Coincident", 1, 2, 2, 1))
sketch14.addConstraint(Sketcher.Constraint("Tangent", 2, 2, 0, 1))
sketch14.addConstraint(Sketcher.Constraint("Tangent", 3, 2, 4, 1))
sketch14.addConstraint(Sketcher.Constraint("Coincident", 4, 2, 5, 1))
sketch14.addConstraint(Sketcher.Constraint("Tangent", 5, 2, 3, 1))
sketch14.addConstraint(Sketcher.Constraint("Tangent", 6, 2, 7, 1))
sketch14.addConstraint(Sketcher.Constraint("Tangent", 7, 2, 8, 1))
sketch14.addConstraint(Sketcher.Constraint("Coincident", 8, 2, 6, 1))
sketch14.addConstraint(Sketcher.Constraint("Tangent", 9, 2, 10, 1))
sketch14.addConstraint(Sketcher.Constraint("Tangent", 10, 2, 11, 1))
sketch14.addConstraint(Sketcher.Constraint("Coincident", 11, 2, 9, 1))
sketch14.addConstraint(Sketcher.Constraint("Horizontal", 1))
sketch14.addConstraint(Sketcher.Constraint("Vertical", 2))
sketch14.addConstraint(Sketcher.Constraint("Vertical", 4))
sketch14.addConstraint(Sketcher.Constraint("Horizontal", 5))
sketch14.addConstraint(Sketcher.Constraint("Vertical", 6))
sketch14.addConstraint(Sketcher.Constraint("Horizontal", 8))
sketch14.addConstraint(Sketcher.Constraint("Horizontal", 9))
sketch14.addConstraint(Sketcher.Constraint("Vertical", 11))
sketch14.addConstraint(Sketcher.Constraint("Coincident", 0, 3, -1, 1))
sketch14.addConstraint(Sketcher.Constraint("Coincident", 3, 3, -1, 1))
sketch14.addConstraint(Sketcher.Constraint("Coincident", 7, 3, -1, 1))
sketch14.addConstraint(Sketcher.Constraint("Coincident", 10, 3, -1, 1))
sketch14.addConstraint(Sketcher.Constraint("Equal", 0, 3))
sketch14.addConstraint(Sketcher.Constraint("Equal", 3, 7))
sketch14.addConstraint(Sketcher.Constraint("Equal", 7, 10))
sketch14.addConstraint(Sketcher.Constraint("Radius", 0, Q("1.5 in")))
pocket7 = body.newObject("PartDesign::Pocket", "Pocket006")
pocket7.Profile = sketch14
pocket7.Length = Q("1 in")
pocket7.Reversed = True

# Sketch on XY plane
sketch15 = body.newObject("Sketcher::SketchObject", "Sketch014")
sketch15.AttachmentSupport = (doc.getObject("XY_Plane"), [""])
sketch15.MapMode = "FlatFace"
sketch15.AttachmentOffset = App.Placement(App.Vector(0, 0, 1.5 * 25.4), App.Rotation())
sketch15.addGeometry(Part.ArcOfCircle(Part.Circle(App.Vector(0, -38, 0), App.Vector(0, 0, 1), 38), math.radians(0), math.radians(90)), False)
sketch15.addGeometry(Part.LineSegment(App.Vector(38, -38, 0), App.Vector(38, 0, 0)), False)
sketch15.addGeometry(Part.LineSegment(App.Vector(38, 0, 0), App.Vector(0, 0, 0)), False)
sketch15.addGeometry(Part.LineSegment(App.Vector(38, -76, 0), App.Vector(38, -38, 0)), False)
sketch15.addGeometry(Part.ArcOfCircle(Part.Circle(App.Vector(0, -38, 0), App.Vector(0, 0, 1), 38), math.radians(-90), math.radians(0)), False)
sketch15.addGeometry(Part.LineSegment(App.Vector(0, -76, 0), App.Vector(38, -76, 0)), False)
sketch15.addGeometry(Part.LineSegment(App.Vector(-38, -76, 0), App.Vector(0, -76, 0)), False)
sketch15.addGeometry(Part.ArcOfCircle(Part.Circle(App.Vector(0, -38, 0), App.Vector(0, 0, 1), 38), math.radians(180), math.radians(270)), False)
sketch15.addGeometry(Part.LineSegment(App.Vector(-38, -38, 0), App.Vector(-38, -76, 0)), False)
sketch15.addGeometry(Part.ArcOfCircle(Part.Circle(App.Vector(0, -38, 0), App.Vector(0, 0, 1), 38), math.radians(90), math.radians(180)), False)
sketch15.addGeometry(Part.LineSegment(App.Vector(0, 0, 0), App.Vector(-38, 0, 0)), False)
sketch15.addGeometry(Part.LineSegment(App.Vector(-38, 0, 0), App.Vector(-38, -38, 0)), False)
sketch15.addConstraint(Sketcher.Constraint("Tangent", 0, 1, 1, 1))
sketch15.addConstraint(Sketcher.Constraint("Coincident", 1, 2, 2, 1))
sketch15.addConstraint(Sketcher.Constraint("Tangent", 2, 2, 0, 2))
sketch15.addConstraint(Sketcher.Constraint("Tangent", 3, 2, 4, 2))
sketch15.addConstraint(Sketcher.Constraint("Tangent", 4, 1, 5, 1))
sketch15.addConstraint(Sketcher.Constraint("Coincident", 5, 2, 3, 1))
sketch15.addConstraint(Sketcher.Constraint("Tangent", 6, 2, 7, 2))
sketch15.addConstraint(Sketcher.Constraint("Tangent", 7, 1, 8, 1))
sketch15.addConstraint(Sketcher.Constraint("Coincident", 8, 2, 6, 1))
sketch15.addConstraint(Sketcher.Constraint("Tangent", 9, 1, 10, 1))
sketch15.addConstraint(Sketcher.Constraint("Coincident", 10, 2, 11, 1))
sketch15.addConstraint(Sketcher.Constraint("Tangent", 11, 2, 9, 2))
sketch15.addConstraint(Sketcher.Constraint("Vertical", 1))
sketch15.addConstraint(Sketcher.Constraint("Horizontal", 2))
sketch15.addConstraint(Sketcher.Constraint("Vertical", 3))
sketch15.addConstraint(Sketcher.Constraint("Horizontal", 5))
sketch15.addConstraint(Sketcher.Constraint("Horizontal", 6))
sketch15.addConstraint(Sketcher.Constraint("Vertical", 8))
sketch15.addConstraint(Sketcher.Constraint("Horizontal", 10))
sketch15.addConstraint(Sketcher.Constraint("Vertical", 11))
sketch15.addConstraint(Sketcher.Constraint("Coincident", 2, 2, -1, 1))
sketch15.addConstraint(Sketcher.Constraint("Coincident", 9, 1, -1, 1))
sketch15.addConstraint(Sketcher.Constraint("Coincident", 4, 3, 0, 3))
sketch15.addConstraint(Sketcher.Constraint("Coincident", 7, 3, 0, 3))
sketch15.addConstraint(Sketcher.Constraint("Coincident", 11, 2, 7, 1))
sketch15.addConstraint(Sketcher.Constraint("Equal", 0, 4))
sketch15.addConstraint(Sketcher.Constraint("Radius", 0, Q("1.5 in")))
pocket8 = body.newObject("PartDesign::Pocket", "Pocket007")
pocket8.Profile = sketch15
pocket8.Length = Q("1 in")

# Sketch on XY plane
sketch16 = body.newObject("Sketcher::SketchObject", "Sketch015")
sketch16.AttachmentSupport = (doc.getObject("XY_Plane"), [""])
sketch16.MapMode = "FlatFace"
sketch16.AttachmentOffset = App.Placement(App.Vector(0, 0, -1.5 * 25.4), App.Rotation())
sketch16.addGeometry(Part.LineSegment(App.Vector(-38, 0, 0), App.Vector(0, 0, 0)), False)
sketch16.addGeometry(Part.ArcOfCircle(Part.Circle(App.Vector(0, -38, 0), App.Vector(0, 0, 1), 38), math.radians(90), math.radians(180)), False)
sketch16.addGeometry(Part.LineSegment(App.Vector(-38, -38, 0), App.Vector(-38, 0, 0)), False)
sketch16.addGeometry(Part.ArcOfCircle(Part.Circle(App.Vector(0, -38, 0), App.Vector(0, 0, 1), 38), math.radians(180), math.radians(270)), False)
sketch16.addGeometry(Part.LineSegment(App.Vector(0, -76, 0), App.Vector(-38, -76, 0)), False)
sketch16.addGeometry(Part.LineSegment(App.Vector(-38, -76, 0), App.Vector(-38, -38, 0)), False)
sketch16.addGeometry(Part.ArcOfCircle(Part.Circle(App.Vector(0, -38, 0), App.Vector(0, 0, 1), 38), math.radians(-90), math.radians(0)), False)
sketch16.addGeometry(Part.LineSegment(App.Vector(38, -38, 0), App.Vector(38, -76, 0)), False)
sketch16.addGeometry(Part.LineSegment(App.Vector(38, -76, 0), App.Vector(0, -76, 0)), False)
sketch16.addGeometry(Part.LineSegment(App.Vector(38, 0, 0), App.Vector(38, -38, 0)), False)
sketch16.addGeometry(Part.ArcOfCircle(Part.Circle(App.Vector(0, -38, 0), App.Vector(0, 0, 1), 38), math.radians(0), math.radians(90)), False)
sketch16.addGeometry(Part.LineSegment(App.Vector(0, 0, 0), App.Vector(38, 0, 0)), False)
sketch16.addConstraint(Sketcher.Constraint("Tangent", 0, 2, 1, 1))
sketch16.addConstraint(Sketcher.Constraint("Tangent", 1, 2, 2, 1))
sketch16.addConstraint(Sketcher.Constraint("Coincident", 2, 2, 0, 1))
sketch16.addConstraint(Sketcher.Constraint("Tangent", 3, 2, 4, 1))
sketch16.addConstraint(Sketcher.Constraint("Coincident", 4, 2, 5, 1))
sketch16.addConstraint(Sketcher.Constraint("Tangent", 5, 2, 3, 1))
sketch16.addConstraint(Sketcher.Constraint("Tangent", 6, 2, 7, 1))
sketch16.addConstraint(Sketcher.Constraint("Coincident", 7, 2, 8, 1))
sketch16.addConstraint(Sketcher.Constraint("Tangent", 8, 2, 6, 1))
sketch16.addConstraint(Sketcher.Constraint("Tangent", 9, 2, 10, 1))
sketch16.addConstraint(Sketcher.Constraint("Tangent", 10, 2, 11, 1))
sketch16.addConstraint(Sketcher.Constraint("Coincident", 11, 2, 9, 1))
sketch16.addConstraint(Sketcher.Constraint("Horizontal", 0))
sketch16.addConstraint(Sketcher.Constraint("Vertical", 2))
sketch16.addConstraint(Sketcher.Constraint("Horizontal", 4))
sketch16.addConstraint(Sketcher.Constraint("Vertical", 5))
sketch16.addConstraint(Sketcher.Constraint("Vertical", 7))
sketch16.addConstraint(Sketcher.Constraint("Horizontal", 8))
sketch16.addConstraint(Sketcher.Constraint("Vertical", 9))
sketch16.addConstraint(Sketcher.Constraint("Horizontal", 11))
sketch16.addConstraint(Sketcher.Constraint("Coincident", 0, 2, -1, 1))
sketch16.addConstraint(Sketcher.Constraint("Coincident", 10, 2, -1, 1))
sketch16.addConstraint(Sketcher.Constraint("Coincident", 3, 3, 1, 3))
sketch16.addConstraint(Sketcher.Constraint("Coincident", 6, 3, 1, 3))
sketch16.addConstraint(Sketcher.Constraint("Coincident", 9, 2, 6, 2))
sketch16.addConstraint(Sketcher.Constraint("Equal", 1, 3))
sketch16.addConstraint(Sketcher.Constraint("Radius", 1, Q("1.5 in")))
pocket9 = body.newObject("PartDesign::Pocket", "Pocket008")
pocket9.Profile = sketch16
pocket9.Length = Q("1 in")
pocket9.Reversed = True

doc.recompute()
